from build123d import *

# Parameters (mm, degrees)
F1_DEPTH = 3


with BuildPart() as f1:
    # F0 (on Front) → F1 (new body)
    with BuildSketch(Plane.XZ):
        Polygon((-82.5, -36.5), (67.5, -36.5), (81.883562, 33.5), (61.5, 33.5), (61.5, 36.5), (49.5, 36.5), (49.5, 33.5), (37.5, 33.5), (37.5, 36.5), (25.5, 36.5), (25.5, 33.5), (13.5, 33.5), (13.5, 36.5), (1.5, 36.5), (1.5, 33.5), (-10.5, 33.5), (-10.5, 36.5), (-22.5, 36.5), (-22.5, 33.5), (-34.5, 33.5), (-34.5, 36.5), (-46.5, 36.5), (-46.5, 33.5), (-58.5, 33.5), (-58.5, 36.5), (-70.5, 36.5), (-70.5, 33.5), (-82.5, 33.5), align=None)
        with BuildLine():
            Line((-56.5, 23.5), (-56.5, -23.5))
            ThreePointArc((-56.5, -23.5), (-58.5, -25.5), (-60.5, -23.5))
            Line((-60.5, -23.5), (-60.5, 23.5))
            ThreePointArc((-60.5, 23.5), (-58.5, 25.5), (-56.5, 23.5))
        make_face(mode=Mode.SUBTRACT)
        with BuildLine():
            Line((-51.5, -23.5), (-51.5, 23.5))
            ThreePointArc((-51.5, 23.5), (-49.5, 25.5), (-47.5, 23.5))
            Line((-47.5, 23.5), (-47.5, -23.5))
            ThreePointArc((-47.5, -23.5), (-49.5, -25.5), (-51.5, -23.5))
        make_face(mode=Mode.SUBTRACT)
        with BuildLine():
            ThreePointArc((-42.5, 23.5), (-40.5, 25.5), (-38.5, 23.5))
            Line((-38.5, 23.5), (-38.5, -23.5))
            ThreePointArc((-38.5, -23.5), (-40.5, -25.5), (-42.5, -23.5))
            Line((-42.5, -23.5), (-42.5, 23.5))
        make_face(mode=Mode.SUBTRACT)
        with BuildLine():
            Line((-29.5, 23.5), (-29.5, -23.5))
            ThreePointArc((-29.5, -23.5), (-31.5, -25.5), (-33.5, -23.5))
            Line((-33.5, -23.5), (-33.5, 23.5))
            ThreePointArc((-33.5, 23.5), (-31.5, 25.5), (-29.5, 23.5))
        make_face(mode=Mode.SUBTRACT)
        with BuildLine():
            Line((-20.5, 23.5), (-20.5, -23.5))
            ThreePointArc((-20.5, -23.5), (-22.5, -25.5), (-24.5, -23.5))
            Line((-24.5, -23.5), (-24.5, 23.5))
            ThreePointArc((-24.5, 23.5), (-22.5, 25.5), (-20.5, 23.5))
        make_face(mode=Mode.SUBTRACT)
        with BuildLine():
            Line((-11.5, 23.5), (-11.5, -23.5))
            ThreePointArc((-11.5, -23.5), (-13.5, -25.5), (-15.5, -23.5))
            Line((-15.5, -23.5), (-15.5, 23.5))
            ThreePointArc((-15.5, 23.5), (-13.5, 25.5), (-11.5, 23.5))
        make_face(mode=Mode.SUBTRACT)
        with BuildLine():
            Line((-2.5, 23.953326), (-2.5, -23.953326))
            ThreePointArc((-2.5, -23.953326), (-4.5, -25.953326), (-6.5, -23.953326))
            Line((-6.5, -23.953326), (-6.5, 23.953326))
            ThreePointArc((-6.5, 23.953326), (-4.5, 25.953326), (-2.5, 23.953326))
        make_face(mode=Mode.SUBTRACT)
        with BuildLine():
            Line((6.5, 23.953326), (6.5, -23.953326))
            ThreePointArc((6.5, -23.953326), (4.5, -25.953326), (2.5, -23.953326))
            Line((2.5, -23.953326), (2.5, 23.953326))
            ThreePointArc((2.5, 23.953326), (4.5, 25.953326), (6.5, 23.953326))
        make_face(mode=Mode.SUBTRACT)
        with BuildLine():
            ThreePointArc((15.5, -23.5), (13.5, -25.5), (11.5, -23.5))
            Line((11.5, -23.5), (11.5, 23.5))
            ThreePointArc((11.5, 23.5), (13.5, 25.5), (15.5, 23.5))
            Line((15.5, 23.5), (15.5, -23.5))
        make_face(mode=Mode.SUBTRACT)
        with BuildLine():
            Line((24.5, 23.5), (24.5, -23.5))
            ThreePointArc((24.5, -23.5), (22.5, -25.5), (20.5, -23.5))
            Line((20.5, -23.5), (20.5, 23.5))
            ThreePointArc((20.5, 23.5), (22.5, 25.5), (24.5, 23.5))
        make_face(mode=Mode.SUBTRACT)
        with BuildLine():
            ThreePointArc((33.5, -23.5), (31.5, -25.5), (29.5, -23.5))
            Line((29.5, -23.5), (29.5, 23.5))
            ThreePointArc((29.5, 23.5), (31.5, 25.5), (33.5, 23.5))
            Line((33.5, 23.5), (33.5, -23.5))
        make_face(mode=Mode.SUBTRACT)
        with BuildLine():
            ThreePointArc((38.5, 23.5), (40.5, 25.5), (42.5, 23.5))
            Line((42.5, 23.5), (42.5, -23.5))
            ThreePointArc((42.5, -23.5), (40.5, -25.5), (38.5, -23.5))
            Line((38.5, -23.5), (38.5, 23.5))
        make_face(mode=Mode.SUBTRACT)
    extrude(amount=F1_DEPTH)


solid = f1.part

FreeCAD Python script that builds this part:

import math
import FreeCAD as App
import Part
import Sketcher
from FreeCAD import Vector
Q = App.Units.Quantity

doc = App.newDocument("Part")
body = doc.addObject("PartDesign::Body", "Body")

# Sketch on XZ plane
sketch1 = body.newObject("Sketcher::SketchObject", "Sketch")
sketch1.AttachmentSupport = (doc.getObject("XZ_Plane"), [""])
sketch1.MapMode = "FlatFace"
sketch1.addGeometry(Part.LineSegment(Vector(-82.5, -36.5, 0), Vector(67.5, -36.5, 0)), False)
sketch1.addGeometry(Part.LineSegment(Vector(67.5, -36.5, 0), Vector(81.883562, 33.5, 0)), False)
sketch1.addGeometry(Part.LineSegment(Vector(81.883562, 33.5, 0), Vector(61.5, 33.5, 0)), False)
sketch1.addGeometry(Part.LineSegment(Vector(61.5, 33.5, 0), Vector(61.5, 36.5, 0)), False)
sketch1.addGeometry(Part.LineSegment(Vector(61.5, 36.5, 0), Vector(49.5, 36.5, 0)), False)
sketch1.addGeometry(Part.LineSegment(Vector(49.5, 36.5, 0), Vector(49.5, 33.5, 0)), False)
sketch1.addGeometry(Part.LineSegment(Vector(49.5, 33.5, 0), Vector(37.5, 33.5, 0)), False)
sketch1.addGeometry(Part.LineSegment(Vector(37.5, 33.5, 0), Vector(37.5, 36.5, 0)), False)
sketch1.addGeometry(Part.LineSegment(Vector(37.5, 36.5, 0), Vector(25.5, 36.5, 0)), False)
sketch1.addGeometry(Part.LineSegment(Vector(25.5, 36.5, 0), Vector(25.5, 33.5, 0)), False)
sketch1.addGeometry(Part.LineSegment(Vector(25.5, 33.5, 0), Vector(13.5, 33.5, 0)), False)
sketch1.addGeometry(Part.LineSegment(Vector(13.5, 33.5, 0), Vector(13.5, 36.5, 0)), False)
sketch1.addGeometry(Part.LineSegment(Vector(13.5, 36.5, 0), Vector(1.5, 36.5, 0)), False)
sketch1.addGeometry(Part.LineSegment(Vector(1.5, 36.5, 0), Vector(1.5, 33.5, 0)), False)
sketch1.addGeometry(Part.LineSegment(Vector(1.5, 33.5, 0), Vector(-10.5, 33.5, 0)), False)
sketch1.addGeometry(Part.LineSegment(Vector(-10.5, 33.5, 0), Vector(-10.5, 36.5, 0)), False)
sketch1.addGeometry(Part.LineSegment(Vector(-10.5, 36.5, 0), Vector(-22.5, 36.5, 0)), False)
sketch1.addGeometry(Part.LineSegment(Vector(-22.5, 36.5, 0), Vector(-22.5, 33.5, 0)), False)
sketch1.addGeometry(Part.LineSegment(Vector(-22.5, 33.5, 0), Vector(-34.5, 33.5, 0)), False)
sketch1.addGeometry(Part.LineSegment(Vector(-34.5, 33.5, 0), Vector(-34.5, 36.5, 0)), False)
sketch1.addGeometry(Part.LineSegment(Vector(-34.5, 36.5, 0), Vector(-46.5, 36.5, 0)), False)
sketch1.addGeometry(Part.LineSegment(Vector(-46.5, 36.5, 0), Vector(-46.5, 33.5, 0)), False)
sketch1.addGeometry(Part.LineSegment(Vector(-46.5, 33.5, 0), Vector(-58.5, 33.5, 0)), False)
sketch1.addGeometry(Part.LineSegment(Vector(-58.5, 33.5, 0), Vector(-58.5, 36.5, 0)), False)
sketch1.addGeometry(Part.LineSegment(Vector(-58.5, 36.5, 0), Vector(-70.5, 36.5, 0)), False)
sketch1.addGeometry(Part.LineSegment(Vector(-70.5, 36.5, 0), Vector(-70.5, 33.5, 0)), False)
sketch1.addGeometry(Part.LineSegment(Vector(-70.5, 33.5, 0), Vector(-82.5, 33.5, 0)), False)
sketch1.addGeometry(Part.LineSegment(Vector(-82.5, 33.5, 0), Vector(-82.5, -36.5, 0)), False)
sketch1.addGeometry(Part.ArcOfCircle(Part.Circle(Vector(-58.5, 23.5, 0), Vector(0, 0, 1), 2), math.radians(0), math.radians(180)), False)
sketch1.addGeometry(Part.LineSegment(Vector(-56.5, 23.5, 0), Vector(-56.5, -23.5, 0)), False)
sketch1.addGeometry(Part.ArcOfCircle(Part.Circle(Vector(-58.5, -23.5, 0), Vector(0, 0, 1), 2), math.radians(180), math.radians(360)), False)
sketch1.addGeometry(Part.LineSegment(Vector(-60.5, -23.5, 0), Vector(-60.5, 23.5, 0)), False)
sketch1.addGeometry(Part.ArcOfCircle(Part.Circle(Vector(-49.5, -23.5, 0), Vector(0, 0, 1), 2), math.radians(180), math.radians(360)), False)
sketch1.addGeometry(Part.LineSegment(Vector(-51.5, -23.5, 0), Vector(-51.5, 23.5, 0)), False)
sketch1.addGeometry(Part.ArcOfCircle(Part.Circle(Vector(-49.5, 23.5, 0), Vector(0, 0, 1), 2), math.radians(0), math.radians(180)), False)
sketch1.addGeometry(Part.LineSegment(Vector(-47.5, 23.5, 0), Vector(-47.5, -23.5, 0)), False)
sketch1.addGeometry(Part.LineSegment(Vector(-42.5, -23.5, 0), Vector(-42.5, 23.5, 0)), False)
sketch1.addGeometry(Part.ArcOfCircle(Part.Circle(Vector(-40.5, 23.5, 0), Vector(0, 0, 1), 2), math.radians(0), math.radians(180)), False)
sketch1.addGeometry(Part.LineSegment(Vector(-38.5, 23.5, 0), Vector(-38.5, -23.5, 0)), False)
sketch1.addGeometry(Part.ArcOfCircle(Part.Circle(Vector(-40.5, -23.5, 0), Vector(0, 0, 1), 2), math.radians(180), math.radians(360)), False)
sketch1.addGeometry(Part.ArcOfCircle(Part.Circle(Vector(-31.5, 23.5, 0), Vector(0, 0, 1), 2), math.radians(0), math.radians(180)), False)
sketch1.addGeometry(Part.LineSegment(Vector(-29.5, 23.5, 0), Vector(-29.5, -23.5, 0)), False)
sketch1.addGeometry(Part.ArcOfCircle(Part.Circle(Vector(-31.5, -23.5, 0), Vector(0, 0, 1), 2), math.radians(180), math.radians(360)), False)
sketch1.addGeometry(Part.LineSegment(Vector(-33.5, -23.5, 0), Vector(-33.5, 23.5, 0)), False)
sketch1.addGeometry(Part.ArcOfCircle(Part.Circle(Vector(-22.5, 23.5, 0), Vector(0, 0, 1), 2), math.radians(0), math.radians(180)), False)
sketch1.addGeometry(Part.LineSegment(Vector(-20.5, 23.5, 0), Vector(-20.5, -23.5, 0)), False)
sketch1.addGeometry(Part.ArcOfCircle(Part.Circle(Vector(-22.5, -23.5, 0), Vector(0, 0, 1), 2), math.radians(180), math.radians(360)), False)
sketch1.addGeometry(Part.LineSegment(Vector(-24.5, -23.5, 0), Vector(-24.5, 23.5, 0)), False)
sketch1.addGeometry(Part.ArcOfCircle(Part.Circle(Vector(-13.5, 23.5, 0), Vector(0, 0, 1), 2), math.radians(0), math.radians(180)), False)
sketch1.addGeometry(Part.LineSegment(Vector(-11.5, 23.5, 0), Vector(-11.5, -23.5, 0)), False)
sketch1.addGeometry(Part.ArcOfCircle(Part.Circle(Vector(-13.5, -23.5, 0), Vector(0, 0, 1), 2), math.radians(180), math.radians(360)), False)
sketch1.addGeometry(Part.LineSegment(Vector(-15.5, -23.5, 0), Vector(-15.5, 23.5, 0)), False)
sketch1.addGeometry(Part.ArcOfCircle(Part.Circle(Vector(-4.5, 23.953326, 0), Vector(0, 0, 1), 2), math.radians(0), math.radians(180)), False)
sketch1.addGeometry(Part.LineSegment(Vector(-2.5, 23.953326, 0), Vector(-2.5, -23.953326, 0)), False)
sketch1.addGeometry(Part.ArcOfCircle(Part.Circle(Vector(-4.5, -23.953326, 0), Vector(0, 0, 1), 2), math.radians(180), math.radians(360)), False)
sketch1.addGeometry(Part.LineSegment(Vector(-6.5, -23.953326, 0), Vector(-6.5, 23.953326, 0)), False)
sketch1.addGeometry(Part.ArcOfCircle(Part.Circle(Vector(4.5, 23.953326, 0), Vector(0, 0, 1), 2), math.radians(0), math.radians(180)), False)
sketch1.addGeometry(Part.LineSegment(Vector(6.5, 23.953326, 0), Vector(6.5, -23.953326, 0)), False)
sketch1.addGeometry(Part.ArcOfCircle(Part.Circle(Vector(4.5, -23.953326, 0), Vector(0, 0, 1), 2), math.radians(180), math.radians(360)), False)
sketch1.addGeometry(Part.LineSegment(Vector(2.5, -23.953326, 0), Vector(2.5, 23.953326, 0)), False)
sketch1.addGeometry(Part.LineSegment(Vector(15.5, 23.5, 0), Vector(15.5, -23.5, 0)), False)
sketch1.addGeometry(Part.ArcOfCircle(Part.Circle(Vector(13.5, -23.5, 0), Vector(0, 0, 1), 2), math.radians(180), math.radians(360)), False)
sketch1.addGeometry(Part.LineSegment(Vector(11.5, -23.5, 0), Vector(11.5, 23.5, 0)), False)
sketch1.addGeometry(Part.ArcOfCircle(Part.Circle(Vector(13.5, 23.5, 0), Vector(0, 0, 1), 2), math.radians(0), math.radians(180)), False)
sketch1.addGeometry(Part.ArcOfCircle(Part.Circle(Vector(22.5, 23.5, 0), Vector(0, 0, 1), 2), math.radians(0), math.radians(180)), False)
sketch1.addGeometry(Part.LineSegment(Vector(24.5, 23.5, 0), Vector(24.5, -23.5, 0)), False)
sketch1.addGeometry(Part.ArcOfCircle(Part.Circle(Vector(22.5, -23.5, 0), Vector(0, 0, 1), 2), math.radians(180), math.radians(360)), False)
sketch1.addGeometry(Part.LineSegment(Vector(20.5, -23.5, 0), Vector(20.5, 23.5, 0)), False)
sketch1.addGeometry(Part.LineSegment(Vector(33.5, 23.5, 0), Vector(33.5, -23.5, 0)), False)
sketch1.addGeometry(Part.ArcOfCircle(Part.Circle(Vector(31.5, -23.5, 0), Vector(0, 0, 1), 2), math.radians(180), math.radians(360)), False)
sketch1.addGeometry(Part.LineSegment(Vector(29.5, -23.5, 0), Vector(29.5, 23.5, 0)), False)
sketch1.addGeometry(Part.ArcOfCircle(Part.Circle(Vector(31.5, 23.5, 0), Vector(0, 0, 1), 2), math.radians(0), math.radians(180)), False)
sketch1.addGeometry(Part.LineSegment(Vector(38.5, -23.5, 0), Vector(38.5, 23.5, 0)), False)
sketch1.addGeometry(Part.ArcOfCircle(Part.Circle(Vector(40.5, 23.5, 0), Vector(0, 0, 1), 2), math.radians(0), math.radians(180)), False)
sketch1.addGeometry(Part.LineSegment(Vector(42.5, 23.5, 0), Vector(42.5, -23.5, 0)), False)
sketch1.addGeometry(Part.ArcOfCircle(Part.Circle(Vector(40.5, -23.5, 0), Vector(0, 0, 1), 2), math.radians(180), math.radians(360)), False)
sketch1.addConstraint(Sketcher.Constraint("Coincident", 0, 2, 1, 1))
sketch1.addConstraint(Sketcher.Constraint("Coincident", 1, 2, 2, 1))
sketch1.addConstraint(Sketcher.Constraint("Coincident", 2, 2, 3, 1))
sketch1.addConstraint(Sketcher.Constraint("Coincident", 3, 2, 4, 1))
sketch1.addConstraint(Sketcher.Constraint("Coincident", 4, 2, 5, 1))
sketch1.addConstraint(Sketcher.Constraint("Coincident", 5, 2, 6, 1))
sketch1.addConstraint(Sketcher.Constraint("Coincident", 6, 2, 7, 1))
sketch1.addConstraint(Sketcher.Constraint("Coincident", 7, 2, 8, 1))
sketch1.addConstraint(Sketcher.Constraint("Coincident", 8, 2, 9, 1))
sketch1.addConstraint(Sketcher.Constraint("Coincident", 9, 2, 10, 1))
sketch1.addConstraint(Sketcher.Constraint("Coincident", 10, 2, 11, 1))
sketch1.addConstraint(Sketcher.Constraint("Coincident", 11, 2, 12, 1))
sketch1.addConstraint(Sketcher.Constraint("Coincident", 12, 2, 13, 1))
sketch1.addConstraint(Sketcher.Constraint("Coincident", 13, 2, 14, 1))
sketch1.addConstraint(Sketcher.Constraint("Coincident", 14, 2, 15, 1))
sketch1.addConstraint(Sketcher.Constraint("Coincident", 15, 2, 16, 1))
sketch1.addConstraint(Sketcher.Constraint("Coincident", 16, 2, 17, 1))
sketch1.addConstraint(Sketcher.Constraint("Coincident", 17, 2, 18, 1))
sketch1.addConstraint(Sketcher.Constraint("Coincident", 18, 2, 19, 1))
sketch1.addConstraint(Sketcher.Constraint("Coincident", 19, 2, 20, 1))
sketch1.addConstraint(Sketcher.Constraint("Coincident", 20, 2, 21, 1))
sketch1.addConstraint(Sketcher.Constraint("Coincident", 21, 2, 22, 1))
sketch1.addConstraint(Sketcher.Constraint("Coincident", 22, 2, 23, 1))
sketch1.addConstraint(Sketcher.Constraint("Coincident", 23, 2, 24, 1))
sketch1.addConstraint(Sketcher.Constraint("Coincident", 24, 2, 25, 1))
sketch1.addConstraint(Sketcher.Constraint("Coincident", 25, 2, 26, 1))
sketch1.addConstraint(Sketcher.Constraint("Coincident", 26, 2, 27, 1))
sketch1.addConstraint(Sketcher.Constraint("Coincident", 27, 2, 0, 1))
sketch1.addConstraint(Sketcher.Constraint("Tangent", 28, 1, 29, 1))
sketch1.addConstraint(Sketcher.Constraint("Tangent", 29, 2, 30, 2))
sketch1.addConstraint(Sketcher.Constraint("Tangent", 30, 1, 31, 1))
sketch1.addConstraint(Sketcher.Constraint("Tangent", 31, 2, 28, 2))
sketch1.addConstraint(Sketcher.Constraint("Tangent", 32, 1, 33, 1))
sketch1.addConstraint(Sketcher.Constraint("Tangent", 33, 2, 34, 2))
sketch1.addConstraint(Sketcher.Constraint("Tangent", 34, 1, 35, 1))
sketch1.addConstraint(Sketcher.Constraint("Tangent", 35, 2, 32, 2))
sketch1.addConstraint(Sketcher.Constraint("Tangent", 36, 2, 37, 2))
sketch1.addConstraint(Sketcher.Constraint("Tangent", 37, 1, 38, 1))
sketch1.addConstraint(Sketcher.Constraint("Tangent", 38, 2, 39, 2))
sketch1.addConstraint(Sketcher.Constraint("Tangent", 39, 1, 36, 1))
sketch1.addConstraint(Sketcher.Constraint("Tangent", 40, 1, 41, 1))
sketch1.addConstraint(Sketcher.Constraint("Tangent", 41, 2, 42, 2))
sketch1.addConstraint(Sketcher.Constraint("Tangent", 42, 1, 43, 1))
sketch1.addConstraint(Sketcher.Constraint("Tangent", 43, 2, 40, 2))
sketch1.addConstraint(Sketcher.Constraint("Tangent", 44, 1, 45, 1))
sketch1.addConstraint(Sketcher.Constraint("Tangent", 45, 2, 46, 2))
sketch1.addConstraint(Sketcher.Constraint("Tangent", 46, 1, 47, 1))
sketch1.addConstraint(Sketcher.Constraint("Tangent", 47, 2, 44, 2))
sketch1.addConstraint(Sketcher.Constraint("Tangent", 48, 1, 49, 1))
sketch1.addConstraint(Sketcher.Constraint("Tangent", 49, 2, 50, 2))
sketch1.addConstraint(Sketcher.Constraint("Tangent", 50, 1, 51, 1))
sketch1.addConstraint(Sketcher.Constraint("Tangent", 51, 2, 48, 2))
sketch1.addConstraint(Sketcher.Constraint("Tangent", 52, 1, 53, 1))
sketch1.addConstraint(Sketcher.Constraint("Tangent", 53, 2, 54, 2))
sketch1.addConstraint(Sketcher.Constraint("Tangent", 54, 1, 55, 1))
sketch1.addConstraint(Sketcher.Constraint("Tangent", 55, 2, 52, 2))
sketch1.addConstraint(Sketcher.Constraint("Tangent", 56, 1, 57, 1))
sketch1.addConstraint(Sketcher.Constraint("Tangent", 57, 2, 58, 2))
sketch1.addConstraint(Sketcher.Constraint("Tangent", 58, 1, 59, 1))
sketch1.addConstraint(Sketcher.Constraint("Tangent", 59, 2, 56, 2))
sketch1.addConstraint(Sketcher.Constraint("Tangent", 60, 2, 61, 2))
sketch1.addConstraint(Sketcher.Constraint("Tangent", 61, 1, 62, 1))
sketch1.addConstraint(Sketcher.Constraint("Tangent", 62, 2, 63, 2))
sketch1.addConstraint(Sketcher.Constraint("Tangent", 63, 1, 60, 1))
sketch1.addConstraint(Sketcher.Constraint("Tangent", 64, 1, 65, 1))
sketch1.addConstraint(Sketcher.Constraint("Tangent", 65, 2, 66, 2))
sketch1.addConstraint(Sketcher.Constraint("Tangent", 66, 1, 67, 1))
sketch1.addConstraint(Sketcher.Constraint("Tangent", 67, 2, 64, 2))
sketch1.addConstraint(Sketcher.Constraint("Tangent", 68, 2, 69, 2))
sketch1.addConstraint(Sketcher.Constraint("Tangent", 69, 1, 70, 1))
sketch1.addConstraint(Sketcher.Constraint("Tangent", 70, 2, 71, 2))
sketch1.addConstraint(Sketcher.Constraint("Tangent", 71, 1, 68, 1))
sketch1.addConstraint(Sketcher.Constraint("Tangent", 72, 2, 73, 2))
sketch1.addConstraint(Sketcher.Constraint("Tangent", 73, 1, 74, 1))
sketch1.addConstraint(Sketcher.Constraint("Tangent", 74, 2, 75, 2))
sketch1.addConstraint(Sketcher.Constraint("Tangent", 75, 1, 72, 1))
sketch1.addConstraint(Sketcher.Constraint("Horizontal", 0))
sketch1.addConstraint(Sketcher.Constraint("Horizontal", 2))
sketch1.addConstraint(Sketcher.Constraint("Vertical", 3))
sketch1.addConstraint(Sketcher.Constraint("Horizontal", 4))
sketch1.addConstraint(Sketcher.Constraint("Vertical", 5))
sketch1.addConstraint(Sketcher.Constraint("Horizontal", 6))
sketch1.addConstraint(Sketcher.Constraint("Vertical", 7))
sketch1.addConstraint(Sketcher.Constraint("Horizontal", 8))
sketch1.addConstraint(Sketcher.Constraint("Vertical", 9))
sketch1.addConstraint(Sketcher.Constraint("Horizontal", 10))
sketch1.addConstraint(Sketcher.Constraint("Vertical", 11))
sketch1.addConstraint(Sketcher.Constraint("Horizontal", 12))
sketch1.addConstraint(Sketcher.Constraint("Vertical", 13))
sketch1.addConstraint(Sketcher.Constraint("Horizontal", 14))
sketch1.addConstraint(Sketcher.Constraint("Vertical", 15))
sketch1.addConstraint(Sketcher.Constraint("Horizontal", 16))
sketch1.addConstraint(Sketcher.Constraint("Vertical", 17))
sketch1.addConstraint(Sketcher.Constraint("Horizontal", 18))
sketch1.addConstraint(Sketcher.Constraint("Vertical", 19))
sketch1.addConstraint(Sketcher.Constraint("Horizontal", 20))
sketch1.addConstraint(Sketcher.Constraint("Vertical", 21))
sketch1.addConstraint(Sketcher.Constraint("Horizontal", 22))
sketch1.addConstraint(Sketcher.Constraint("Vertical", 23))
sketch1.addConstraint(Sketcher.Constraint("Horizontal", 24))
sketch1.addConstraint(Sketcher.Constraint("Vertical", 25))
sketch1.addConstraint(Sketcher.Constraint("Horizontal", 26))
sketch1.addConstraint(Sketcher.Constraint("Vertical", 27))
sketch1.addConstraint(Sketcher.Constraint("Vertical", 29))
sketch1.addConstraint(Sketcher.Constraint("Vertical", 31))
sketch1.addConstraint(Sketcher.Constraint("Vertical", 33))
sketch1.addConstraint(Sketcher.Constraint("Vertical", 35))
sketch1.addConstraint(Sketcher.Constraint("Vertical", 36))
sketch1.addConstraint(Sketcher.Constraint("Vertical", 38))
sketch1.addConstraint(Sketcher.Constraint("Vertical", 41))
sketch1.addConstraint(Sketcher.Constraint("Vertical", 43))
sketch1.addConstraint(Sketcher.Constraint("Vertical", 45))
sketch1.addConstraint(Sketcher.Constraint("Vertical", 47))
sketch1.addConstraint(Sketcher.Constraint("Vertical", 49))
sketch1.addConstraint(Sketcher.Constraint("Vertical", 51))
sketch1.addConstraint(Sketcher.Constraint("Vertical", 53))
sketch1.addConstraint(Sketcher.Constraint("Vertical", 55))
sketch1.addConstraint(Sketcher.Constraint("Vertical", 57))
sketch1.addConstraint(Sketcher.Constraint("Vertical", 59))
sketch1.addConstraint(Sketcher.Constraint("Vertical", 60))
sketch1.addConstraint(Sketcher.Constraint("Vertical", 62))
sketch1.addConstraint(Sketcher.Constraint("Vertical", 65))
sketch1.addConstraint(Sketcher.Constraint("Vertical", 67))
sketch1.addConstraint(Sketcher.Constraint("Vertical", 68))
sketch1.addConstraint(Sketcher.Constraint("Vertical", 70))
sketch1.addConstraint(Sketcher.Constraint("Vertical", 72))
sketch1.addConstraint(Sketcher.Constraint("Vertical", 74))
sketch1.addConstraint(Sketcher.Constraint("Equal", 30, 32))
sketch1.addConstraint(Sketcher.Constraint("Equal", 34, 37))
sketch1.addConstraint(Sketcher.Constraint("Equal", 39, 40))
sketch1.addConstraint(Sketcher.Constraint("Equal", 42, 44))
sketch1.addConstraint(Sketcher.Constraint("Equal", 46, 48))
sketch1.addConstraint(Sketcher.Constraint("Equal", 50, 52))
sketch1.addConstraint(Sketcher.Constraint("Equal", 54, 56))
sketch1.addConstraint(Sketcher.Constraint("Equal", 58, 61))
sketch1.addConstraint(Sketcher.Constraint("Equal", 63, 64))
sketch1.addConstraint(Sketcher.Constraint("Equal", 66, 69))
sketch1.addConstraint(Sketcher.Constraint("Equal", 71, 73))
sketch1.addConstraint(Sketcher.Constraint("Symmetric", 54, 3, 56, 3, -1, 1))
sketch1.addConstraint(Sketcher.Constraint("Symmetric", 48, 3, 61, 3, -1, 1))
sketch1.addConstraint(Sketcher.Constraint("Symmetric", 46, 3, 64, 3, -1, 1))
sketch1.addConstraint(Sketcher.Constraint("Symmetric", 40, 3, 69, 3, -1, 1))
sketch1.addConstraint(Sketcher.Constraint("Symmetric", 39, 3, 73, 3, -1, 1))
sketch1.addConstraint(Sketcher.Constraint("Horizontal", 30, 3, 32, 3))
sketch1.addConstraint(Sketcher.Constraint("Horizontal", 28, 3, 34, 3))
sketch1.addConstraint(Sketcher.Constraint("Horizontal", 34, 3, 37, 3))
sketch1.addConstraint(Sketcher.Constraint("Horizontal", 32, 3, 39, 3))
sketch1.addConstraint(Sketcher.Constraint("Horizontal", 37, 3, 40, 3))
sketch1.addConstraint(Sketcher.Constraint("Horizontal", 39, 3, 42, 3))
sketch1.addConstraint(Sketcher.Constraint("Horizontal", 40, 3, 44, 3))
sketch1.addConstraint(Sketcher.Constraint("Horizontal", 42, 3, 46, 3))
sketch1.addConstraint(Sketcher.Constraint("Horizontal", 44, 3, 48, 3))
sketch1.addConstraint(Sketcher.Constraint("Horizontal", 46, 3, 50, 3))
sketch1.addConstraint(Sketcher.Constraint("Horizontal", 52, 3, 56, 3))
sketch1.addConstraint(Sketcher.Constraint("Horizontal", 54, 3, 58, 3))
sketch1.addConstraint(Sketcher.Constraint("Horizontal", 50, 3, 61, 3))
sketch1.addConstraint(Sketcher.Constraint("Horizontal", 48, 3, 63, 3))
sketch1.addConstraint(Sketcher.Constraint("Horizontal", 61, 3, 66, 3))
sketch1.addConstraint(Sketcher.Constraint("Horizontal", 64, 3, 71, 3))
sketch1.addConstraint(Sketcher.Constraint("Horizontal", 69, 3, 75, 3))
sketch1.addConstraint(Sketcher.Constraint("Horizontal", 2, 2, 5, 2))
sketch1.addConstraint(Sketcher.Constraint("Horizontal", 4, 2, 7, 2))
sketch1.addConstraint(Sketcher.Constraint("Horizontal", 6, 2, 9, 2))
sketch1.addConstraint(Sketcher.Constraint("Horizontal", 8, 2, 11, 2))
sketch1.addConstraint(Sketcher.Constraint("Horizontal", 10, 2, 13, 2))
sketch1.addConstraint(Sketcher.Constraint("Horizontal", 12, 2, 15, 2))
sketch1.addConstraint(Sketcher.Constraint("Horizontal", 14, 2, 17, 2))
sketch1.addConstraint(Sketcher.Constraint("Horizontal", 16, 2, 19, 2))
sketch1.addConstraint(Sketcher.Constraint("Horizontal", 18, 2, 21, 2))
sketch1.addConstraint(Sketcher.Constraint("Horizontal", 20, 2, 23, 2))
sketch1.addConstraint(Sketcher.Constraint("Horizontal", 22, 2, 25, 2))
sketch1.addConstraint(Sketcher.Constraint("Vertical", 63, 3, 10, 2))
sketch1.addConstraint(Sketcher.Constraint("Vertical", 46, 3, 16, 2))
sketch1.addConstraint(Sketcher.Constraint("Vertical", 30, 3, 22, 2))
sketch1.addConstraint(Sketcher.Constraint("Equal", 4, 6))
sketch1.addConstraint(Sketcher.Constraint("Equal", 6, 8))
sketch1.addConstraint(Sketcher.Constraint("Equal", 8, 10))
sketch1.addConstraint(Sketcher.Constraint("Equal", 10, 12))
sketch1.addConstraint(Sketcher.Constraint("Equal", 12, 14))
sketch1.addConstraint(Sketcher.Constraint("Equal", 14, 16))
sketch1.addConstraint(Sketcher.Constraint("Equal", 16, 18))
sketch1.addConstraint(Sketcher.Constraint("Equal", 18, 20))
sketch1.addConstraint(Sketcher.Constraint("Equal", 20, 22))
sketch1.addConstraint(Sketcher.Constraint("Equal", 22, 24))
sketch1.addConstraint(Sketcher.Constraint("Equal", 24, 26))
sketch1.addConstraint(Sketcher.Constraint("Radius", 28, Q("2 mm")))
sketch1.addConstraint(Sketcher.Constraint("DistanceX", 0, 1, 0, 2, Q("150 mm")))
sketch1.addConstraint(Sketcher.Constraint("DistanceX", 4, 2, 4, 1, Q("12 mm")))
sketch1.addConstraint(Sketcher.Constraint("DistanceY", 3, 1, 3, 2, Q("3 mm")))
sketch1.addConstraint(Sketcher.Constraint("DistanceY", 27, 2, 27, 1, Q("70 mm")))
sketch1.addConstraint(Sketcher.Constraint("DistanceY", 29, 2, 29, 1, Q("47 mm")))
sketch1.addConstraint(Sketcher.Constraint("DistanceX", 28, 3, -1, 1, Q("58.5 mm")))
sketch1.addConstraint(Sketcher.Constraint("DistanceX", 32, 3, -1, 1, Q("49.5 mm")))
sketch1.addConstraint(Sketcher.Constraint("DistanceX", 37, 3, -1, 1, Q("40.5 mm")))
sketch1.addConstraint(Sketcher.Constraint("DistanceX", 40, 3, -1, 1, Q("31.5 mm")))
sketch1.addConstraint(Sketcher.Constraint("DistanceX", 52, 3, -1, 1, Q("4.5 mm")))
sketch1.addConstraint(Sketcher.Constraint("DistanceY", 0, 2, -1, 1, Q("36.5 mm")))
sketch1.addConstraint(Sketcher.Constraint("DistanceX", 2, 2, 2, 1, Q("20.383562 mm")))
sketch1.addConstraint(Sketcher.Constraint("DistanceY", 53, 2, 53, 1, Q("47.906652 mm")))
pad1 = body.newObject("PartDesign::Pad", "Pad")
pad1.Profile = sketch1
pad1.Length = 3

doc.recompute()
